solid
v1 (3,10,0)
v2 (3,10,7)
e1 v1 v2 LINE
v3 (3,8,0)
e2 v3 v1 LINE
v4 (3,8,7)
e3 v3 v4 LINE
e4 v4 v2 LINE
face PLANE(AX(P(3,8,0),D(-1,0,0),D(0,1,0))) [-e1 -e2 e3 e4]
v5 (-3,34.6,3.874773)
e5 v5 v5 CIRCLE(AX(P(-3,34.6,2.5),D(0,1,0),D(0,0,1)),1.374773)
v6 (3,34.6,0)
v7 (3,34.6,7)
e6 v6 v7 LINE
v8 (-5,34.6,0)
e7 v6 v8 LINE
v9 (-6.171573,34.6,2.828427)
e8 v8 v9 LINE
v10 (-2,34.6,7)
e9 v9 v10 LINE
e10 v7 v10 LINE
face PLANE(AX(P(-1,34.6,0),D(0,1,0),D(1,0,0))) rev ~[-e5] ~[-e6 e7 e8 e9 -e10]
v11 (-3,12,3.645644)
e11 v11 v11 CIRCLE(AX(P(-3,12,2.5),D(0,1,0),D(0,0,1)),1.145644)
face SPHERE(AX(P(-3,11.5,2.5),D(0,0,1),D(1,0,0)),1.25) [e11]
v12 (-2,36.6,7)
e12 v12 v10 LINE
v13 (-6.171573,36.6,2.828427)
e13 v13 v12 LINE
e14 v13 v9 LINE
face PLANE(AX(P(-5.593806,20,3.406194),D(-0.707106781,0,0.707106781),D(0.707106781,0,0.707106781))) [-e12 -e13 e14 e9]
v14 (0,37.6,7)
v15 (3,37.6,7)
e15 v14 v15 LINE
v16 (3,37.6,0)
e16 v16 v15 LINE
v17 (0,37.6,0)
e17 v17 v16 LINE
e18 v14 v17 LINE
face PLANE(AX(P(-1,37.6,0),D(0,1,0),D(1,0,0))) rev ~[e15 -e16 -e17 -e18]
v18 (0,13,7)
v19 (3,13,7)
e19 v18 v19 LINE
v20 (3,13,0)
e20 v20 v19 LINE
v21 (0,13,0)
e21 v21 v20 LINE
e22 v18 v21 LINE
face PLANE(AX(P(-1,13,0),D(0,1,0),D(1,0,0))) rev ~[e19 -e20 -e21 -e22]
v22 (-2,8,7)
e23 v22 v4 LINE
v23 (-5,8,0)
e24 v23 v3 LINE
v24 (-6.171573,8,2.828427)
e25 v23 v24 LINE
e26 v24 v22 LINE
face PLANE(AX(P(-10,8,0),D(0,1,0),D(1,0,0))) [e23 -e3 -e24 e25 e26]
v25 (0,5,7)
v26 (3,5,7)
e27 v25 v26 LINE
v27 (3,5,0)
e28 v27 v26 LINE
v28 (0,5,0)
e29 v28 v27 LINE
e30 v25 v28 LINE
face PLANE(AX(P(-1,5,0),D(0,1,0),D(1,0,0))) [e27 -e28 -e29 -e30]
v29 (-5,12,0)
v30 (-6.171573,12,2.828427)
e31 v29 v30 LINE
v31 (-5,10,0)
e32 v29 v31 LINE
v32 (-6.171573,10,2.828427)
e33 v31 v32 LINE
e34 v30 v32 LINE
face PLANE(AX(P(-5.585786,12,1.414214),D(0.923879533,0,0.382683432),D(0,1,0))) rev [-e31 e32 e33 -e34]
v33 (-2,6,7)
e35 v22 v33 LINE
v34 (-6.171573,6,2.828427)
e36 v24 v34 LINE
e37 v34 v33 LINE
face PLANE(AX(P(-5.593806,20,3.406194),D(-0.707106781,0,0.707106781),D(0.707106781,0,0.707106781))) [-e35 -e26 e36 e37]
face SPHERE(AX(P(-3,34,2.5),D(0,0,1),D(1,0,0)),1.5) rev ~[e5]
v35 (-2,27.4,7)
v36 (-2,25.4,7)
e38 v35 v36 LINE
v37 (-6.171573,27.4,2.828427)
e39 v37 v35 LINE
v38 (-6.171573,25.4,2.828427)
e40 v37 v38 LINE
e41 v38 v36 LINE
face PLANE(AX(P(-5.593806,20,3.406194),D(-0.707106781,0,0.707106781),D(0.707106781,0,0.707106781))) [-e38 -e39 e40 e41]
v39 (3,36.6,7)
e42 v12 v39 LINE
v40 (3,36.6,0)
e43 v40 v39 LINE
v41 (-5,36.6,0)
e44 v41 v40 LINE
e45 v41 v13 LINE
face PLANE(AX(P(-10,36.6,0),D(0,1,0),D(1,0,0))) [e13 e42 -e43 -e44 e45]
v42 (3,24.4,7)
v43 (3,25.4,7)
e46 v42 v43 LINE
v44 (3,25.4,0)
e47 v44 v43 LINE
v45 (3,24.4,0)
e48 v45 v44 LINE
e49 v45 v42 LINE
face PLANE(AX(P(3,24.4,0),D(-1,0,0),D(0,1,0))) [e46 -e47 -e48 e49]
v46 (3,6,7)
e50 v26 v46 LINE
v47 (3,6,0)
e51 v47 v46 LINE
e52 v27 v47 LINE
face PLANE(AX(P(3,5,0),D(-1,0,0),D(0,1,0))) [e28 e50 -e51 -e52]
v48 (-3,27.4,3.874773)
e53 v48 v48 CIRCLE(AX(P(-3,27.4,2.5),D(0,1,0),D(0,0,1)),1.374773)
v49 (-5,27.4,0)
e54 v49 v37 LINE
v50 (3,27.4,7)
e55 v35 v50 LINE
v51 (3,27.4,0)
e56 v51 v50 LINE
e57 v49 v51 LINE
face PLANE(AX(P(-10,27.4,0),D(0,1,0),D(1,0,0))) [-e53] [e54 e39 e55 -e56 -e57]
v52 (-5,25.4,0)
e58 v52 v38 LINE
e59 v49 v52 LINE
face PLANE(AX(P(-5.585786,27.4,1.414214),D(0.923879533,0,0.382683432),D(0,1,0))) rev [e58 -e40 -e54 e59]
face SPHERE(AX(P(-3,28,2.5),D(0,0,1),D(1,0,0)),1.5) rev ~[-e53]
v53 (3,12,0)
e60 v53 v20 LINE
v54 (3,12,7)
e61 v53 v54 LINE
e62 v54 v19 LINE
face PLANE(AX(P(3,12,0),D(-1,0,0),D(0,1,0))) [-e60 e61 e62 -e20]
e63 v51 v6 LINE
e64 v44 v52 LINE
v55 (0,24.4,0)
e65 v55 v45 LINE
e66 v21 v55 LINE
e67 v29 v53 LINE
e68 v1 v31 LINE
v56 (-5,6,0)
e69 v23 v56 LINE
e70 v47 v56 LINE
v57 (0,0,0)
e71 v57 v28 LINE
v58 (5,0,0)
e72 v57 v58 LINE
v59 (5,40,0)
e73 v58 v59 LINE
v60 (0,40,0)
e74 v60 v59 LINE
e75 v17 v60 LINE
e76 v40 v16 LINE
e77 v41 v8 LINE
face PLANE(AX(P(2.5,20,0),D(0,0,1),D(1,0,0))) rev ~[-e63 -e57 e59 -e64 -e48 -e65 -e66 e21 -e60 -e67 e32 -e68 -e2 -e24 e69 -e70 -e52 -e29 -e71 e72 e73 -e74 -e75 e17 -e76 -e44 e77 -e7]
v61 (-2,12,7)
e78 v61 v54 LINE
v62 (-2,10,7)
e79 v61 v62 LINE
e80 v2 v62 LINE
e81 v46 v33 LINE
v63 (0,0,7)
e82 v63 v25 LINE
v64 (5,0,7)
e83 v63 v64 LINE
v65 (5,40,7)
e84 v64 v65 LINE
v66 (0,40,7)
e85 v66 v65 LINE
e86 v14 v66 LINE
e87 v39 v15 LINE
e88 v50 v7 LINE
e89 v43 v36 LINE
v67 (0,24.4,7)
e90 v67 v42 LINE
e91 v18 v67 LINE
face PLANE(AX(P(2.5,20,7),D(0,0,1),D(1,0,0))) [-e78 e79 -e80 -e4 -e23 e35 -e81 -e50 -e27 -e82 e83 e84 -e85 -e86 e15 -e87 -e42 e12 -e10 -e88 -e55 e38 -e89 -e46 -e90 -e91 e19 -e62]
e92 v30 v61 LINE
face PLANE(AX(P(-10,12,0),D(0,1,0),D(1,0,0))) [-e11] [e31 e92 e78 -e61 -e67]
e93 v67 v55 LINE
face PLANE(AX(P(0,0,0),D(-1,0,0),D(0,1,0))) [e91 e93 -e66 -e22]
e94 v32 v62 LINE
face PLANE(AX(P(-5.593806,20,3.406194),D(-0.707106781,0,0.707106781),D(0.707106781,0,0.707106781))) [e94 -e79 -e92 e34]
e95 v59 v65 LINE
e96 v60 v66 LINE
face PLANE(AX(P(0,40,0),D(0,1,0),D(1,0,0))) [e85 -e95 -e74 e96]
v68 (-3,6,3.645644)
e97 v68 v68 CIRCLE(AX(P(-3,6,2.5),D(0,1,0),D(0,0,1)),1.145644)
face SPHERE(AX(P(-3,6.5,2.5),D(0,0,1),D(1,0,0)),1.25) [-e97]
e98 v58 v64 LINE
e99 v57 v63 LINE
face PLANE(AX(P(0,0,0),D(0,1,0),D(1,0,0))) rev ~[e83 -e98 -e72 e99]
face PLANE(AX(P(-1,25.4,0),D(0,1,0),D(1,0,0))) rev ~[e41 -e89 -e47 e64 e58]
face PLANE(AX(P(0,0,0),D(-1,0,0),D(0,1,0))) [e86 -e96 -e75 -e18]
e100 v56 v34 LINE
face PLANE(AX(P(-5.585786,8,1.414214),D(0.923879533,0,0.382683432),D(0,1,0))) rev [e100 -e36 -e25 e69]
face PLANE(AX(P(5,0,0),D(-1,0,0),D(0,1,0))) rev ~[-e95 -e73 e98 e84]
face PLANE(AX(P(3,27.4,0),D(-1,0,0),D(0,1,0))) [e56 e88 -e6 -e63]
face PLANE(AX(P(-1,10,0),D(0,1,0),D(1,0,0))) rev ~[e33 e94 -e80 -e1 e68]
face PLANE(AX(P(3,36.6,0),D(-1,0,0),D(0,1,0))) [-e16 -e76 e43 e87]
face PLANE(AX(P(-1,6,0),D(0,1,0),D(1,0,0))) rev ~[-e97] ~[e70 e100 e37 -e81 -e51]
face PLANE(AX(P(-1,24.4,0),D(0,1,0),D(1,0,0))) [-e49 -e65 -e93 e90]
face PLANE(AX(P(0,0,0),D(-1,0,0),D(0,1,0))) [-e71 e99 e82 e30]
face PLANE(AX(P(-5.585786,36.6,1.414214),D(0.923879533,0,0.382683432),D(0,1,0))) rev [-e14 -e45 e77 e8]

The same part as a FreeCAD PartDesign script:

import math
import FreeCAD as App
import Part
import Sketcher

V = App.Vector


def edges_at(feature, points):
    """Names of the edges that pass closest to the given points."""
    edges = feature.Shape.Edges
    near = lambda p: min(range(len(edges)), key=lambda i: edges[i].distToShape(Part.Vertex(*p))[0])
    return sorted({f"Edge{near(p) + 1}" for p in points})


def add_polygon(sketch, points):
    """Adds a closed chain of lines whose ends are joined by coincident constraints."""
    first, n = sketch.GeometryCount, len(points)
    for a, b in zip(points, points[1:] + points[:1]):
        sketch.addGeometry(Part.LineSegment(App.Vector(*a, 0), App.Vector(*b, 0)), False)
    for i in range(n):
        sketch.addConstraint(Sketcher.Constraint("Coincident", first + i, 2, first + (i + 1) % n, 1))

doc = App.newDocument("Part")
params = doc.addObject("Spreadsheet::Sheet", "Params")
for row, (alias, value) in enumerate([
    ("sketch1_width", "4 mm"),
    ("sketch1_height", "1 mm"),
    ("pad1_length", "7 mm"),
    ("sketch2_width", "4 mm"),
    ("sketch2_height", "1 mm"),
    ("pad2_length", "7 mm"),
    ("sketch3_width", "4 mm"),
    ("sketch3_height", "2 mm"),
    ("pad3_length", "7 mm"),
    ("sketch4_width", "4 mm"),
    ("sketch4_height", "1 mm"),
    ("pad4_length", "7 mm"),
    ("sketch5_width", "4 mm"),
    ("sketch5_height", "1 mm"),
    ("pad5_length", "7 mm"),
    ("sketch6_width", "4 mm"),
    ("sketch6_height", "7.2 mm"),
    ("pad6_length", "7 mm"),
    ("sketch7_radius", "1.5 mm"),
    ("revolution_angle", "360 deg"),
    ("sketch8_radius", "1.5 mm"),
    ("revolution2_angle", "360 deg"),
    ("sketch9_radius", "1.25 mm"),
    ("revolution3_angle", "360 deg"),
    ("sketch10_width", "13 mm"),
    ("sketch10_height", "40 mm"),
    ("pad7_length", "10 mm"),
    ("sketch11_width", "10 mm"),
    ("sketch11_height", "2 mm"),
    ("pad8_length", "7 mm"),
    ("sketch12_width", "10 mm"),
    ("sketch12_height", "2 mm"),
    ("pad9_length", "7 mm"),
    ("sketch13_width", "10 mm"),
    ("sketch13_height", "2 mm"),
    ("pad10_length", "7 mm"),
    ("sketch14_width", "10 mm"),
    ("sketch14_height", "2 mm"),
    ("pad11_length", "7 mm"),
    ("sketch15_width", "5 mm"),
    ("sketch15_height", "40 mm"),
    ("pad12_length", "7 mm"),
    ("sketch16_radius", "1.25 mm"),
    ("revolution4_angle", "360 deg"),
    ("chamfer_size", "4 mm"),
], start=1):
    params.set(f"A{row}", alias)
    params.set(f"B{row}", "=" + value)
    params.setAlias(f"B{row}", alias)

body = doc.addObject("PartDesign::Body", "Body")

sketch1 = body.newObject("Sketcher::SketchObject", "Sketch")
sketch1.AttachmentSupport = (doc.getObject("XY_Plane"), [""])
sketch1.MapMode = "FlatFace"
add_polygon(sketch1, [(-1, 13), (-1, 12), (3, 12), (3, 13)])
sketch1.addConstraint([
    Sketcher.Constraint("Vertical", 0),
    Sketcher.Constraint("Horizontal", 1),
    Sketcher.Constraint("Vertical", 2),
    Sketcher.Constraint("Horizontal", 3),
    Sketcher.Constraint("DistanceX", 1, 1, 1, 2, 4.0),
    Sketcher.Constraint("DistanceY", 0, 2, 0, 1, 1.0),
    Sketcher.Constraint("DistanceX", 0, 2, -1, 1, 1.0),
    Sketcher.Constraint("DistanceY", -1, 1, 0, 2, 12.0),
])
sketch1.setExpression("Constraints[8]", "Params.sketch1_width")
sketch1.setExpression("Constraints[9]", "Params.sketch1_height")
pad1 = body.newObject("PartDesign::Pad", "Pad")
pad1.Profile = sketch1
pad1.setExpression("Length", "Params.pad1_length")
body2 = doc.addObject("PartDesign::Body", "Body001")

sketch2 = body2.newObject("Sketcher::SketchObject", "Sketch001")
sketch2.AttachmentSupport = (doc.getObject("XY_Plane001"), [""])
sketch2.MapMode = "FlatFace"
add_polygon(sketch2, [(-1, 37.6), (-1, 36.6), (3, 36.6), (3, 37.6)])
sketch2.addConstraint([
    Sketcher.Constraint("Vertical", 0),
    Sketcher.Constraint("Horizontal", 1),
    Sketcher.Constraint("Vertical", 2),
    Sketcher.Constraint("Horizontal", 3),
    Sketcher.Constraint("DistanceX", 1, 1, 1, 2, 4.0),
    Sketcher.Constraint("DistanceY", 0, 2, 0, 1, 1.0),
    Sketcher.Constraint("DistanceX", 0, 2, -1, 1, 1.0),
    Sketcher.Constraint("DistanceY", -1, 1, 0, 2, 36.6),
])
sketch2.setExpression("Constraints[8]", "Params.sketch2_width")
sketch2.setExpression("Constraints[9]", "Params.sketch2_height")
pad2 = body2.newObject("PartDesign::Pad", "Pad001")
pad2.Profile = sketch2
pad2.setExpression("Length", "Params.pad2_length")
body3 = doc.addObject("PartDesign::Body", "Body002")

sketch3 = body3.newObject("Sketcher::SketchObject", "Sketch002")
sketch3.AttachmentSupport = (doc.getObject("XY_Plane002"), [""])
sketch3.MapMode = "FlatFace"
add_polygon(sketch3, [(-1, 10), (-1, 8), (3, 8), (3, 10)])
sketch3.addConstraint([
    Sketcher.Constraint("Vertical", 0),
    Sketcher.Constraint("Horizontal", 1),
    Sketcher.Constraint("Vertical", 2),
    Sketcher.Constraint("Horizontal", 3),
    Sketcher.Constraint("DistanceX", 1, 1, 1, 2, 4.0),
    Sketcher.Constraint("DistanceY", 0, 2, 0, 1, 2.0),
    Sketcher.Constraint("DistanceX", 0, 2, -1, 1, 1.0),
    Sketcher.Constraint("DistanceY", -1, 1, 0, 2, 8.0),
])
sketch3.setExpression("Constraints[8]", "Params.sketch3_width")
sketch3.setExpression("Constraints[9]", "Params.sketch3_height")
pad3 = body3.newObject("PartDesign::Pad", "Pad002")
pad3.Profile = sketch3
pad3.setExpression("Length", "Params.pad3_length")
body4 = doc.addObject("PartDesign::Body", "Body003")

sketch4 = body4.newObject("Sketcher::SketchObject", "Sketch003")
sketch4.AttachmentSupport = (doc.getObject("XY_Plane003"), [""])
sketch4.MapMode = "FlatFace"
add_polygon(sketch4, [(-1, 25.4), (-1, 24.4), (3, 24.4), (3, 25.4)])
sketch4.addConstraint([
    Sketcher.Constraint("Vertical", 0),
    Sketcher.Constraint("Horizontal", 1),
    Sketcher.Constraint("Vertical", 2),
    Sketcher.Constraint("Horizontal", 3),
    Sketcher.Constraint("DistanceX", 1, 1, 1, 2, 4.0),
    Sketcher.Constraint("DistanceY", 0, 2, 0, 1, 1.0),
    Sketcher.Constraint("DistanceX", 0, 2, -1, 1, 1.0),
    Sketcher.Constraint("DistanceY", -1, 1, 0, 2, 24.4),
])
sketch4.setExpression("Constraints[8]", "Params.sketch4_width")
sketch4.setExpression("Constraints[9]", "Params.sketch4_height")
pad4 = body4.newObject("PartDesign::Pad", "Pad003")
pad4.Profile = sketch4
pad4.setExpression("Length", "Params.pad4_length")
body5 = doc.addObject("PartDesign::Body", "Body004")

sketch5 = body5.newObject("Sketcher::SketchObject", "Sketch004")
sketch5.AttachmentSupport = (doc.getObject("XY_Plane004"), [""])
sketch5.MapMode = "FlatFace"
add_polygon(sketch5, [(-1, 6), (-1, 5), (3, 5), (3, 6)])
sketch5.addConstraint([
    Sketcher.Constraint("Vertical", 0),
    Sketcher.Constraint("Horizontal", 1),
    Sketcher.Constraint("Vertical", 2),
    Sketcher.Constraint("Horizontal", 3),
    Sketcher.Constraint("DistanceX", 1, 1, 1, 2, 4.0),
    Sketcher.Constraint("DistanceY", 0, 2, 0, 1, 1.0),
    Sketcher.Constraint("DistanceX", 0, 2, -1, 1, 1.0),
    Sketcher.Constraint("DistanceY", -1, 1, 0, 2, 5.0),
])
sketch5.setExpression("Constraints[8]", "Params.sketch5_width")
sketch5.setExpression("Constraints[9]", "Params.sketch5_height")
pad5 = body5.newObject("PartDesign::Pad", "Pad004")
pad5.Profile = sketch5
pad5.setExpression("Length", "Params.pad5_length")
body6 = doc.addObject("PartDesign::Body", "Body005")
body6.AllowCompound = True

sketch6 = body6.newObject("Sketcher::SketchObject", "Sketch005")
sketch6.AttachmentSupport = (doc.getObject("XY_Plane005"), [""])
sketch6.MapMode = "FlatFace"
add_polygon(sketch6, [(-1, 34.6), (-1, 27.4), (3, 27.4), (3, 34.6)])
sketch6.addConstraint([
    Sketcher.Constraint("Vertical", 0),
    Sketcher.Constraint("Horizontal", 1),
    Sketcher.Constraint("Vertical", 2),
    Sketcher.Constraint("Horizontal", 3),
    Sketcher.Constraint("DistanceX", 1, 1, 1, 2, 4.0),
    Sketcher.Constraint("DistanceY", 0, 2, 0, 1, 7.2),
    Sketcher.Constraint("DistanceX", 0, 2, -1, 1, 1.0),
    Sketcher.Constraint("DistanceY", -1, 1, 0, 2, 27.4),
])
sketch6.setExpression("Constraints[8]", "Params.sketch6_width")
sketch6.setExpression("Constraints[9]", "Params.sketch6_height")
pad6 = body6.newObject("PartDesign::Pad", "Pad005")
pad6.Profile = sketch6
pad6.setExpression("Length", "Params.pad6_length")
doc.recompute()

boolean = body6.newObject("PartDesign::Boolean", "Boolean")
boolean.Type = "Fuse"
boolean.addObjects([body])
doc.recompute()

boolean2 = body6.newObject("PartDesign::Boolean", "Boolean001")
boolean2.Type = "Fuse"
boolean2.addObjects([body2])
doc.recompute()

boolean3 = body6.newObject("PartDesign::Boolean", "Boolean002")
boolean3.Type = "Fuse"
boolean3.addObjects([body3])
doc.recompute()

boolean4 = body6.newObject("PartDesign::Boolean", "Boolean003")
boolean4.Type = "Fuse"
boolean4.addObjects([body4])
doc.recompute()

boolean5 = body6.newObject("PartDesign::Boolean", "Boolean004")
boolean5.Type = "Fuse"
boolean5.addObjects([body5])
body7 = doc.addObject("PartDesign::Body", "Body006")

sketch7 = body7.newObject("Sketcher::SketchObject", "Sketch006")
sketch7.AttachmentSupport = (doc.getObject("XZ_Plane006"), [""])
sketch7.MapMode = "FlatFace"
sketch7.AttachmentOffset = App.Placement(V(0, 0, -28), App.Rotation())
sketch7.addGeometry([
    Part.ArcOfCircle(Part.Circle(V(-3, 2.5, 0), V(0, 0, 1), 1.5), math.radians(-90), math.radians(90)),
    Part.LineSegment(V(-3, 4, 0), V(-3, 1, 0)),
], False)
sketch7.addGeometry(Part.LineSegment(V(-3, 1, 0), V(-3, 4, 0)), True)
sketch7.addConstraint([
    Sketcher.Constraint("Coincident", 0, 1, 1, 2),
    Sketcher.Constraint("Coincident", 1, 1, 0, 2),
    Sketcher.Constraint("Vertical", 1),
    Sketcher.Constraint("Vertical", 2),
    Sketcher.Constraint("Coincident", 2, 1, 0, 1),
    Sketcher.Constraint("Equal", 1, 2),
    Sketcher.Constraint("Radius", 0, 1.5),
    Sketcher.Constraint("DistanceX", 0, 3, -1, 1, 3.0),
    Sketcher.Constraint("DistanceX", 0, 1, -1, 1, 3.0),
    Sketcher.Constraint("DistanceY", -1, 1, 0, 1, 1.0),
])
sketch7.setExpression("Constraints[6]", "Params.sketch7_radius")
revolution = body7.newObject("PartDesign::Revolution", "Revolution")
revolution.Profile = sketch7
revolution.ReferenceAxis = (sketch7, ["Axis0"])
revolution.setExpression("Angle", "Params.revolution_angle")
body8 = doc.addObject("PartDesign::Body", "Body007")
body8.AllowCompound = True

sketch8 = body8.newObject("Sketcher::SketchObject", "Sketch007")
sketch8.AttachmentSupport = (doc.getObject("XZ_Plane007"), [""])
sketch8.MapMode = "FlatFace"
sketch8.AttachmentOffset = App.Placement(V(0, 0, -34), App.Rotation())
sketch8.addGeometry([
    Part.ArcOfCircle(Part.Circle(V(-3, 2.5, 0), V(0, 0, 1), 1.5), math.radians(-90), math.radians(90)),
    Part.LineSegment(V(-3, 4, 0), V(-3, 1, 0)),
], False)
sketch8.addGeometry(Part.LineSegment(V(-3, 1, 0), V(-3, 4, 0)), True)
sketch8.addConstraint([
    Sketcher.Constraint("Coincident", 0, 1, 1, 2),
    Sketcher.Constraint("Coincident", 1, 1, 0, 2),
    Sketcher.Constraint("Vertical", 1),
    Sketcher.Constraint("Vertical", 2),
    Sketcher.Constraint("Coincident", 2, 1, 0, 1),
    Sketcher.Constraint("Equal", 1, 2),
    Sketcher.Constraint("Radius", 0, 1.5),
    Sketcher.Constraint("DistanceX", 0, 3, -1, 1, 3.0),
    Sketcher.Constraint("DistanceX", 0, 1, -1, 1, 3.0),
    Sketcher.Constraint("DistanceY", -1, 1, 0, 1, 1.0),
])
sketch8.setExpression("Constraints[6]", "Params.sketch8_radius")
revolution2 = body8.newObject("PartDesign::Revolution", "Revolution001")
revolution2.Profile = sketch8
revolution2.ReferenceAxis = (sketch8, ["Axis0"])
revolution2.setExpression("Angle", "Params.revolution2_angle")
doc.recompute()

boolean6 = body8.newObject("PartDesign::Boolean", "Boolean005")
boolean6.Type = "Fuse"
boolean6.addObjects([body7])
body9 = doc.addObject("PartDesign::Body", "Body008")

sketch9 = body9.newObject("Sketcher::SketchObject", "Sketch008")
sketch9.AttachmentSupport = (doc.getObject("XZ_Plane008"), [""])
sketch9.MapMode = "FlatFace"
sketch9.AttachmentOffset = App.Placement(V(0, 0, -11.5), App.Rotation())
sketch9.addGeometry([
    Part.ArcOfCircle(Part.Circle(V(-3, 2.5, 0), V(0, 0, 1), 1.2), math.radians(-90), math.radians(90)),
    Part.LineSegment(V(-3, 3.8, 0), V(-3, 1.2, 0)),
], False)
sketch9.addGeometry(Part.LineSegment(V(-3, 1.2, 0), V(-3, 3.8, 0)), True)
sketch9.addConstraint([
    Sketcher.Constraint("Coincident", 0, 1, 1, 2),
    Sketcher.Constraint("Coincident", 1, 1, 0, 2),
    Sketcher.Constraint("Vertical", 1),
    Sketcher.Constraint("Vertical", 2),
    Sketcher.Constraint("Coincident", 2, 1, 0, 1),
    Sketcher.Constraint("Equal", 1, 2),
    Sketcher.Constraint("Radius", 0, 1.25),
    Sketcher.Constraint("DistanceX", 0, 3, -1, 1, 3.0),
    Sketcher.Constraint("DistanceX", 0, 1, -1, 1, 3.0),
    Sketcher.Constraint("DistanceY", -1, 1, 0, 3, 2.5),
])
sketch9.setExpression("Constraints[6]", "Params.sketch9_radius")
revolution3 = body9.newObject("PartDesign::Revolution", "Revolution002")
revolution3.Profile = sketch9
revolution3.ReferenceAxis = (sketch9, ["Axis0"])
revolution3.setExpression("Angle", "Params.revolution3_angle")
body10 = doc.addObject("PartDesign::Body", "Body009")

sketch10 = body10.newObject("Sketcher::SketchObject", "Sketch009")
sketch10.AttachmentSupport = (doc.getObject("XY_Plane009"), [""])
sketch10.MapMode = "FlatFace"
add_polygon(sketch10, [(0, 40), (0, 0), (13, 0), (13, 40)])
sketch10.addConstraint([
    Sketcher.Constraint("Vertical", 0),
    Sketcher.Constraint("Horizontal", 1),
    Sketcher.Constraint("Vertical", 2),
    Sketcher.Constraint("Horizontal", 3),
    Sketcher.Constraint("Coincident", 0, 2, -1, 1),
    Sketcher.Constraint("DistanceX", 1, 1, 1, 2, 13.0),
    Sketcher.Constraint("DistanceY", 0, 2, 0, 1, 40.0),
])
sketch10.setExpression("Constraints[9]", "Params.sketch10_width")
sketch10.setExpression("Constraints[10]", "Params.sketch10_height")
pad7 = body10.newObject("PartDesign::Pad", "Pad006")
pad7.Profile = sketch10
pad7.setExpression("Length", "Params.pad7_length")
body11 = doc.addObject("PartDesign::Body", "Body010")
doc.recompute()

body10.Placement = App.Placement(V(0, 0, 0), App.Rotation(V(0, 1, 0), 315))
boolean7 = body11.newObject("PartDesign::Boolean", "Boolean006")
boolean7.Type = "Fuse"
boolean7.addObjects([body10])
body12 = doc.addObject("PartDesign::Body", "Body011")
doc.recompute()

body11.Placement = App.Placement(V(-10.19, 0, -1.19), App.Rotation(V(0, 0, 1), 0))
boolean8 = body12.newObject("PartDesign::Boolean", "Boolean007")
boolean8.Type = "Fuse"
boolean8.addObjects([body11])
body13 = doc.addObject("PartDesign::Body", "Body012")

sketch11 = body13.newObject("Sketcher::SketchObject", "Sketch010")
sketch11.AttachmentSupport = (doc.getObject("XY_Plane012"), [""])
sketch11.MapMode = "FlatFace"
add_polygon(sketch11, [(-10, 8), (-10, 6), (0, 6), (0, 8)])
sketch11.addConstraint([
    Sketcher.Constraint("Vertical", 0),
    Sketcher.Constraint("Horizontal", 1),
    Sketcher.Constraint("Vertical", 2),
    Sketcher.Constraint("Horizontal", 3),
    Sketcher.Constraint("PointOnObject", 1, 2, -2),
    Sketcher.Constraint("DistanceX", 1, 1, 1, 2, 10.0),
    Sketcher.Constraint("DistanceY", 0, 2, 0, 1, 2.0),
    Sketcher.Constraint("DistanceY", -1, 1, 0, 2, 6.0),
])
sketch11.setExpression("Constraints[9]", "Params.sketch11_width")
sketch11.setExpression("Constraints[10]", "Params.sketch11_height")
pad8 = body13.newObject("PartDesign::Pad", "Pad007")
pad8.Profile = sketch11
pad8.setExpression("Length", "Params.pad8_length")
body14 = doc.addObject("PartDesign::Body", "Body013")

sketch12 = body14.newObject("Sketcher::SketchObject", "Sketch011")
sketch12.AttachmentSupport = (doc.getObject("XY_Plane013"), [""])
sketch12.MapMode = "FlatFace"
add_polygon(sketch12, [(-10, 12), (-10, 10), (0, 10), (0, 12)])
sketch12.addConstraint([
    Sketcher.Constraint("Vertical", 0),
    Sketcher.Constraint("Horizontal", 1),
    Sketcher.Constraint("Vertical", 2),
    Sketcher.Constraint("Horizontal", 3),
    Sketcher.Constraint("PointOnObject", 1, 2, -2),
    Sketcher.Constraint("DistanceX", 1, 1, 1, 2, 10.0),
    Sketcher.Constraint("DistanceY", 0, 2, 0, 1, 2.0),
    Sketcher.Constraint("DistanceY", -1, 1, 0, 2, 10.0),
])
sketch12.setExpression("Constraints[9]", "Params.sketch12_width")
sketch12.setExpression("Constraints[10]", "Params.sketch12_height")
pad9 = body14.newObject("PartDesign::Pad", "Pad008")
pad9.Profile = sketch12
pad9.setExpression("Length", "Params.pad9_length")
body15 = doc.addObject("PartDesign::Body", "Body014")

sketch13 = body15.newObject("Sketcher::SketchObject", "Sketch012")
sketch13.AttachmentSupport = (doc.getObject("XY_Plane014"), [""])
sketch13.MapMode = "FlatFace"
add_polygon(sketch13, [(-10, 27.4), (-10, 25.4), (0, 25.4), (0, 27.4)])
sketch13.addConstraint([
    Sketcher.Constraint("Vertical", 0),
    Sketcher.Constraint("Horizontal", 1),
    Sketcher.Constraint("Vertical", 2),
    Sketcher.Constraint("Horizontal", 3),
    Sketcher.Constraint("PointOnObject", 1, 2, -2),
    Sketcher.Constraint("DistanceX", 1, 1, 1, 2, 10.0),
    Sketcher.Constraint("DistanceY", 0, 2, 0, 1, 2.0),
    Sketcher.Constraint("DistanceY", -1, 1, 0, 2, 25.4),
])
sketch13.setExpression("Constraints[9]", "Params.sketch13_width")
sketch13.setExpression("Constraints[10]", "Params.sketch13_height")
pad10 = body15.newObject("PartDesign::Pad", "Pad009")
pad10.Profile = sketch13
pad10.setExpression("Length", "Params.pad10_length")
body16 = doc.addObject("PartDesign::Body", "Body015")

sketch14 = body16.newObject("Sketcher::SketchObject", "Sketch013")
sketch14.AttachmentSupport = (doc.getObject("XY_Plane015"), [""])
sketch14.MapMode = "FlatFace"
add_polygon(sketch14, [(-10, 36.6), (-10, 34.6), (0, 34.6), (0, 36.6)])
sketch14.addConstraint([
    Sketcher.Constraint("Vertical", 0),
    Sketcher.Constraint("Horizontal", 1),
    Sketcher.Constraint("Vertical", 2),
    Sketcher.Constraint("Horizontal", 3),
    Sketcher.Constraint("PointOnObject", 1, 2, -2),
    Sketcher.Constraint("DistanceX", 1, 1, 1, 2, 10.0),
    Sketcher.Constraint("DistanceY", 0, 2, 0, 1, 2.0),
    Sketcher.Constraint("DistanceY", -1, 1, 0, 2, 34.6),
])
sketch14.setExpression("Constraints[9]", "Params.sketch14_width")
sketch14.setExpression("Constraints[10]", "Params.sketch14_height")
pad11 = body16.newObject("PartDesign::Pad", "Pad010")
pad11.Profile = sketch14
pad11.setExpression("Length", "Params.pad11_length")
body17 = doc.addObject("PartDesign::Body", "Body016")

sketch15 = body17.newObject("Sketcher::SketchObject", "Sketch014")
sketch15.AttachmentSupport = (doc.getObject("XY_Plane016"), [""])
sketch15.MapMode = "FlatFace"
add_polygon(sketch15, [(0, 40), (0, 0), (5, 0), (5, 40)])
sketch15.addConstraint([
    Sketcher.Constraint("Vertical", 0),
    Sketcher.Constraint("Horizontal", 1),
    Sketcher.Constraint("Vertical", 2),
    Sketcher.Constraint("Horizontal", 3),
    Sketcher.Constraint("Coincident", 0, 2, -1, 1),
    Sketcher.Constraint("DistanceX", 1, 1, 1, 2, 5.0),
    Sketcher.Constraint("DistanceY", 0, 2, 0, 1, 40.0),
])
sketch15.setExpression("Constraints[9]", "Params.sketch15_width")
sketch15.setExpression("Constraints[10]", "Params.sketch15_height")
pad12 = body17.newObject("PartDesign::Pad", "Pad011")
pad12.Profile = sketch15
pad12.setExpression("Length", "Params.pad12_length")
doc.recompute()

boolean9 = body17.newObject("PartDesign::Boolean", "Boolean008")
boolean9.Type = "Fuse"
boolean9.addObjects([body13])
doc.recompute()

boolean10 = body17.newObject("PartDesign::Boolean", "Boolean009")
boolean10.Type = "Fuse"
boolean10.addObjects([body14])
doc.recompute()

boolean11 = body17.newObject("PartDesign::Boolean", "Boolean010")
boolean11.Type = "Fuse"
boolean11.addObjects([body15])
doc.recompute()

boolean12 = body17.newObject("PartDesign::Boolean", "Boolean011")
boolean12.Type = "Fuse"
boolean12.addObjects([body16])
doc.recompute()

boolean13 = body17.newObject("PartDesign::Boolean", "Boolean012")
boolean13.Type = "Cut"
boolean13.addObjects([body12])
body18 = doc.addObject("PartDesign::Body", "Body017")
body18.AllowCompound = True

sketch16 = body18.newObject("Sketcher::SketchObject", "Sketch015")
sketch16.AttachmentSupport = (doc.getObject("XZ_Plane017"), [""])
sketch16.MapMode = "FlatFace"
sketch16.AttachmentOffset = App.Placement(V(0, 0, -6.5), App.Rotation())
sketch16.addGeometry([
    Part.ArcOfCircle(Part.Circle(V(-3, 2.5, 0), V(0, 0, 1), 1.2), math.radians(-90), math.radians(90)),
    Part.LineSegment(V(-3, 3.8, 0), V(-3, 1.2, 0)),
], False)
sketch16.addGeometry(Part.LineSegment(V(-3, 1.2, 0), V(-3, 3.8, 0)), True)
sketch16.addConstraint([
    Sketcher.Constraint("Coincident", 0, 1, 1, 2),
    Sketcher.Constraint("Coincident", 1, 1, 0, 2),
    Sketcher.Constraint("Vertical", 1),
    Sketcher.Constraint("Vertical", 2),
    Sketcher.Constraint("Coincident", 2, 1, 0, 1),
    Sketcher.Constraint("Equal", 1, 2),
    Sketcher.Constraint("Radius", 0, 1.25),
    Sketcher.Constraint("DistanceX", 0, 3, -1, 1, 3.0),
    Sketcher.Constraint("DistanceX", 0, 1, -1, 1, 3.0),
    Sketcher.Constraint("DistanceY", -1, 1, 0, 3, 2.5),
])
sketch16.setExpression("Constraints[6]", "Params.sketch16_radius")
revolution4 = body18.newObject("PartDesign::Revolution", "Revolution003")
revolution4.Profile = sketch16
revolution4.ReferenceAxis = (sketch16, ["Axis0"])
revolution4.setExpression("Angle", "Params.revolution4_angle")
doc.recompute()

boolean14 = body18.newObject("PartDesign::Boolean", "Boolean013")
boolean14.Type = "Fuse"
boolean14.addObjects([body9])
doc.recompute()

boolean15 = body18.newObject("PartDesign::Boolean", "Boolean014")
boolean15.Type = "Fuse"
boolean15.addObjects([body17])
doc.recompute()

boolean16 = body18.newObject("PartDesign::Boolean", "Boolean015")
boolean16.Type = "Cut"
boolean16.addObjects([body8])
doc.recompute()

chamfer = body18.newObject("PartDesign::Chamfer", "Chamfer")
chamfer.Base = (boolean16, edges_at(boolean16, [
    (-9, 7, 0),
    (-9, 11, 0),
    (-9, 35.6, 0),
    (-9, 26.4, 0),
]))
chamfer.setExpression("Size", "Params.chamfer_size")
doc.recompute()

boolean17 = body18.newObject("PartDesign::Boolean", "Boolean016")
boolean17.Type = "Cut"
boolean17.addObjects([body6])

doc.recompute()
